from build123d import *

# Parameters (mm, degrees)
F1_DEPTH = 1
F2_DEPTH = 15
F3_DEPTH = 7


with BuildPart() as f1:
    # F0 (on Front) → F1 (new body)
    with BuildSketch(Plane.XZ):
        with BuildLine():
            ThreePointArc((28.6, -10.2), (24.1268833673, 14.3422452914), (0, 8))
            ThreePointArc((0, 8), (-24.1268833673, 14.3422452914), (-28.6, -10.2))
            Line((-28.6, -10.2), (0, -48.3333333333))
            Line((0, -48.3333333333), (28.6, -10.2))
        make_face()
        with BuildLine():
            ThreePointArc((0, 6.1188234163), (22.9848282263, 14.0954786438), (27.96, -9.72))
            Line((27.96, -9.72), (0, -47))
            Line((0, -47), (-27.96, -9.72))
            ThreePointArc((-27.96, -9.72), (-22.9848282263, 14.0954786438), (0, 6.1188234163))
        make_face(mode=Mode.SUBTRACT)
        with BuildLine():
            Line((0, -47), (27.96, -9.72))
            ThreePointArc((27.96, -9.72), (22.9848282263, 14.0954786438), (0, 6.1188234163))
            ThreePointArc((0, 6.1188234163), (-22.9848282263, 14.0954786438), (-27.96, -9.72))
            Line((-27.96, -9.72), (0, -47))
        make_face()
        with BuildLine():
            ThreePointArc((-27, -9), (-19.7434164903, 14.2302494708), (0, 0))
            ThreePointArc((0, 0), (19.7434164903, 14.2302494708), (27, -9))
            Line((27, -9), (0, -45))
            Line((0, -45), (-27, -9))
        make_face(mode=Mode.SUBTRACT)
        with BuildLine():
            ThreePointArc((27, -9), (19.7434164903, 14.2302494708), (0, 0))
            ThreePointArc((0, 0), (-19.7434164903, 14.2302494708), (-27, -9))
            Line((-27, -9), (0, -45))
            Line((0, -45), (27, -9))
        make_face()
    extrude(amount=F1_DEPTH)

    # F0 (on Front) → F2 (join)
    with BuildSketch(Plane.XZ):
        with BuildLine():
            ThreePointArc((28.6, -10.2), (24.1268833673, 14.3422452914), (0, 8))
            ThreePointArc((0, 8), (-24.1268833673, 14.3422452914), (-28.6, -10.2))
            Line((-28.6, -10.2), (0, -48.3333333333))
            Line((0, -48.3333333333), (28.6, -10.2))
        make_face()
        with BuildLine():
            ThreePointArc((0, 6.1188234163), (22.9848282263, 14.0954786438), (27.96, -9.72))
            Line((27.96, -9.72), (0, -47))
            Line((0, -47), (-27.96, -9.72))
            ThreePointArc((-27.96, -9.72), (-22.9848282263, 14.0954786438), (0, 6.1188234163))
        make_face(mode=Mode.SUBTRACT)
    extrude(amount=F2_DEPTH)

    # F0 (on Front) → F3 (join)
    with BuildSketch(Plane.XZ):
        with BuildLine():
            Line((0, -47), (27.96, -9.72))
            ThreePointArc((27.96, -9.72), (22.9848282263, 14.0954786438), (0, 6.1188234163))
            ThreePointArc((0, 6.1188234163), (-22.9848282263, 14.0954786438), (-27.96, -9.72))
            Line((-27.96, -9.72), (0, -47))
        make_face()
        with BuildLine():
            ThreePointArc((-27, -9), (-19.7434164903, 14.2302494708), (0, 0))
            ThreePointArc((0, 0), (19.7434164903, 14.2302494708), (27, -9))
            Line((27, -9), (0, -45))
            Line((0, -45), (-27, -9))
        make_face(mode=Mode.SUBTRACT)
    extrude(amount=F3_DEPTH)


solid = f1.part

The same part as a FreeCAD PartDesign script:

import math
import FreeCAD as App
import Part
import Sketcher
Q = App.Units.Quantity

doc = App.newDocument("Part")
body = doc.addObject("PartDesign::Body", "Body")

sketch1 = body.newObject("Sketcher::SketchObject", "Sketch")
sketch1.AttachmentSupport = (doc.getObject("XZ_Plane"), [""])
sketch1.MapMode = "FlatFace"
sketch1.addGeometry([
    Part.ArcOfCircle(Part.Circle(App.Vector(15, 0, 0), App.Vector(0, 0, 1), 17), math.radians(-37), math.radians(152)),
    Part.ArcOfCircle(Part.Circle(App.Vector(-15, 0, 0), App.Vector(0, 0, 1), 17), math.radians(28), math.radians(217)),
    Part.LineSegment(App.Vector(-29, -10, 0), App.Vector(0, -48, 0)),
    Part.LineSegment(App.Vector(0, -48, 0), App.Vector(29, -10, 0)),
], False)
sketch1.addConstraint([
    Sketcher.Constraint("Coincident", 0, 2, 1, 1),
    Sketcher.Constraint("Tangent", 1, 2, 2, 1),
    Sketcher.Constraint("Coincident", 2, 2, 3, 1),
    Sketcher.Constraint("Tangent", 3, 2, 0, 1),
    Sketcher.Constraint("Equal", 0, 1),
    Sketcher.Constraint("Symmetric", 0, 3, 1, 3, -1, 1),
    Sketcher.Constraint("Symmetric", 1, 2, 3, 2, -2),
    Sketcher.Constraint("Radius", 0, Q("17 mm")),
    Sketcher.Constraint("DistanceX", -1, 1, 0, 3, Q("15 mm")),
    Sketcher.Constraint("DistanceX", 1, 2, -1, 1, Q("28.6 mm")),
])
pad1 = body.newObject("PartDesign::Pad", "Pad")
pad1.Profile = sketch1
pad1.Length = 1

sketch2 = body.newObject("Sketcher::SketchObject", "Sketch001")
sketch2.AttachmentSupport = (doc.getObject("XZ_Plane"), [""])
sketch2.MapMode = "FlatFace"
sketch2.addGeometry([
    Part.ArcOfCircle(Part.Circle(App.Vector(15, 0, 0), App.Vector(0, 0, 1), 17), math.radians(-37), math.radians(152)),
    Part.ArcOfCircle(Part.Circle(App.Vector(-15, 0, 0), App.Vector(0, 0, 1), 17), math.radians(28), math.radians(217)),
    Part.LineSegment(App.Vector(-29, -10, 0), App.Vector(0, -48, 0)),
    Part.LineSegment(App.Vector(0, -48, 0), App.Vector(29, -10, 0)),
    Part.ArcOfCircle(Part.Circle(App.Vector(-15, 0, 0), App.Vector(0, 0, 1), 16), math.radians(22), math.radians(217)),
    Part.ArcOfCircle(Part.Circle(App.Vector(15, 0, 0), App.Vector(0, 0, 1), 16), math.radians(-37), math.radians(158)),
    Part.LineSegment(App.Vector(28, -10, 0), App.Vector(0, -47, 0)),
    Part.LineSegment(App.Vector(0, -47, 0), App.Vector(-28, -10, 0)),
], False)
sketch2.addConstraint([
    Sketcher.Constraint("Coincident", 0, 2, 1, 1),
    Sketcher.Constraint("Tangent", 1, 2, 2, 1),
    Sketcher.Constraint("Coincident", 2, 2, 3, 1),
    Sketcher.Constraint("Tangent", 3, 2, 0, 1),
    Sketcher.Constraint("Coincident", 4, 1, 5, 2),
    Sketcher.Constraint("Tangent", 5, 1, 6, 1),
    Sketcher.Constraint("Coincident", 6, 2, 7, 1),
    Sketcher.Constraint("Tangent", 7, 2, 4, 2),
    Sketcher.Constraint("Coincident", 4, 3, 1, 3),
    Sketcher.Constraint("Coincident", 5, 3, 0, 3),
    Sketcher.Constraint("Equal", 0, 1),
    Sketcher.Constraint("Equal", 4, 5),
    Sketcher.Constraint("Symmetric", 0, 3, 1, 3, -1, 1),
    Sketcher.Constraint("Symmetric", 1, 2, 3, 2, -2),
    Sketcher.Constraint("PointOnObject", 6, 2, -2),
    Sketcher.Constraint("Parallel", 3, 6),
    Sketcher.Constraint("Radius", 0, Q("17 mm")),
    Sketcher.Constraint("Radius", 4, Q("16.2 mm")),
    Sketcher.Constraint("DistanceX", -1, 1, 0, 3, Q("15 mm")),
    Sketcher.Constraint("DistanceY", 6, 2, -1, 1, Q("47 mm")),
])
pad2 = body.newObject("PartDesign::Pad", "Pad001")
pad2.Profile = sketch2
pad2.Length = 15

sketch3 = body.newObject("Sketcher::SketchObject", "Sketch002")
sketch3.AttachmentSupport = (doc.getObject("XZ_Plane"), [""])
sketch3.MapMode = "FlatFace"
sketch3.addGeometry([
    Part.LineSegment(App.Vector(0, -47, 0), App.Vector(28, -10, 0)),
    Part.ArcOfCircle(Part.Circle(App.Vector(15, 0, 0), App.Vector(0, 0, 1), 16), math.radians(-37), math.radians(158)),
    Part.ArcOfCircle(Part.Circle(App.Vector(-15, 0, 0), App.Vector(0, 0, 1), 16), math.radians(22), math.radians(217)),
    Part.LineSegment(App.Vector(-28, -10, 0), App.Vector(0, -47, 0)),
    Part.LineSegment(App.Vector(0, -45, 0), App.Vector(-27, -9, 0)),
    Part.ArcOfCircle(Part.Circle(App.Vector(-15, 0, 0), App.Vector(0, 0, 1), 15), math.radians(0), math.radians(217)),
    Part.ArcOfCircle(Part.Circle(App.Vector(15, 0, 0), App.Vector(0, 0, 1), 15), math.radians(-37), math.radians(180)),
    Part.LineSegment(App.Vector(27, -9, 0), App.Vector(0, -45, 0)),
], False)
sketch3.addConstraint([
    Sketcher.Constraint("Tangent", 0, 2, 1, 1),
    Sketcher.Constraint("Coincident", 1, 2, 2, 1),
    Sketcher.Constraint("Tangent", 2, 2, 3, 1),
    Sketcher.Constraint("Coincident", 3, 2, 0, 1),
    Sketcher.Constraint("Tangent", 4, 2, 5, 2),
    Sketcher.Constraint("Tangent", 5, 1, 6, 2),
    Sketcher.Constraint("Tangent", 6, 1, 7, 1),
    Sketcher.Constraint("Coincident", 7, 2, 4, 1),
    Sketcher.Constraint("Coincident", 5, 1, -1, 1),
    Sketcher.Constraint("Coincident", 5, 3, 2, 3),
    Sketcher.Constraint("Coincident", 6, 3, 1, 3),
    Sketcher.Constraint("Equal", 1, 2),
    Sketcher.Constraint("Equal", 5, 6),
    Sketcher.Constraint("Symmetric", 0, 2, 2, 2, -2),
    Sketcher.Constraint("PointOnObject", 7, 2, -2),
    Sketcher.Constraint("Parallel", 3, 4),
    Sketcher.Constraint("Radius", 5, Q("15 mm")),
    Sketcher.Constraint("Radius", 1, Q("16.2 mm")),
    Sketcher.Constraint("Distance", 4, Q("45 mm")),
])
pad3 = body.newObject("PartDesign::Pad", "Pad002")
pad3.Profile = sketch3
pad3.Length = 7

doc.recompute()
